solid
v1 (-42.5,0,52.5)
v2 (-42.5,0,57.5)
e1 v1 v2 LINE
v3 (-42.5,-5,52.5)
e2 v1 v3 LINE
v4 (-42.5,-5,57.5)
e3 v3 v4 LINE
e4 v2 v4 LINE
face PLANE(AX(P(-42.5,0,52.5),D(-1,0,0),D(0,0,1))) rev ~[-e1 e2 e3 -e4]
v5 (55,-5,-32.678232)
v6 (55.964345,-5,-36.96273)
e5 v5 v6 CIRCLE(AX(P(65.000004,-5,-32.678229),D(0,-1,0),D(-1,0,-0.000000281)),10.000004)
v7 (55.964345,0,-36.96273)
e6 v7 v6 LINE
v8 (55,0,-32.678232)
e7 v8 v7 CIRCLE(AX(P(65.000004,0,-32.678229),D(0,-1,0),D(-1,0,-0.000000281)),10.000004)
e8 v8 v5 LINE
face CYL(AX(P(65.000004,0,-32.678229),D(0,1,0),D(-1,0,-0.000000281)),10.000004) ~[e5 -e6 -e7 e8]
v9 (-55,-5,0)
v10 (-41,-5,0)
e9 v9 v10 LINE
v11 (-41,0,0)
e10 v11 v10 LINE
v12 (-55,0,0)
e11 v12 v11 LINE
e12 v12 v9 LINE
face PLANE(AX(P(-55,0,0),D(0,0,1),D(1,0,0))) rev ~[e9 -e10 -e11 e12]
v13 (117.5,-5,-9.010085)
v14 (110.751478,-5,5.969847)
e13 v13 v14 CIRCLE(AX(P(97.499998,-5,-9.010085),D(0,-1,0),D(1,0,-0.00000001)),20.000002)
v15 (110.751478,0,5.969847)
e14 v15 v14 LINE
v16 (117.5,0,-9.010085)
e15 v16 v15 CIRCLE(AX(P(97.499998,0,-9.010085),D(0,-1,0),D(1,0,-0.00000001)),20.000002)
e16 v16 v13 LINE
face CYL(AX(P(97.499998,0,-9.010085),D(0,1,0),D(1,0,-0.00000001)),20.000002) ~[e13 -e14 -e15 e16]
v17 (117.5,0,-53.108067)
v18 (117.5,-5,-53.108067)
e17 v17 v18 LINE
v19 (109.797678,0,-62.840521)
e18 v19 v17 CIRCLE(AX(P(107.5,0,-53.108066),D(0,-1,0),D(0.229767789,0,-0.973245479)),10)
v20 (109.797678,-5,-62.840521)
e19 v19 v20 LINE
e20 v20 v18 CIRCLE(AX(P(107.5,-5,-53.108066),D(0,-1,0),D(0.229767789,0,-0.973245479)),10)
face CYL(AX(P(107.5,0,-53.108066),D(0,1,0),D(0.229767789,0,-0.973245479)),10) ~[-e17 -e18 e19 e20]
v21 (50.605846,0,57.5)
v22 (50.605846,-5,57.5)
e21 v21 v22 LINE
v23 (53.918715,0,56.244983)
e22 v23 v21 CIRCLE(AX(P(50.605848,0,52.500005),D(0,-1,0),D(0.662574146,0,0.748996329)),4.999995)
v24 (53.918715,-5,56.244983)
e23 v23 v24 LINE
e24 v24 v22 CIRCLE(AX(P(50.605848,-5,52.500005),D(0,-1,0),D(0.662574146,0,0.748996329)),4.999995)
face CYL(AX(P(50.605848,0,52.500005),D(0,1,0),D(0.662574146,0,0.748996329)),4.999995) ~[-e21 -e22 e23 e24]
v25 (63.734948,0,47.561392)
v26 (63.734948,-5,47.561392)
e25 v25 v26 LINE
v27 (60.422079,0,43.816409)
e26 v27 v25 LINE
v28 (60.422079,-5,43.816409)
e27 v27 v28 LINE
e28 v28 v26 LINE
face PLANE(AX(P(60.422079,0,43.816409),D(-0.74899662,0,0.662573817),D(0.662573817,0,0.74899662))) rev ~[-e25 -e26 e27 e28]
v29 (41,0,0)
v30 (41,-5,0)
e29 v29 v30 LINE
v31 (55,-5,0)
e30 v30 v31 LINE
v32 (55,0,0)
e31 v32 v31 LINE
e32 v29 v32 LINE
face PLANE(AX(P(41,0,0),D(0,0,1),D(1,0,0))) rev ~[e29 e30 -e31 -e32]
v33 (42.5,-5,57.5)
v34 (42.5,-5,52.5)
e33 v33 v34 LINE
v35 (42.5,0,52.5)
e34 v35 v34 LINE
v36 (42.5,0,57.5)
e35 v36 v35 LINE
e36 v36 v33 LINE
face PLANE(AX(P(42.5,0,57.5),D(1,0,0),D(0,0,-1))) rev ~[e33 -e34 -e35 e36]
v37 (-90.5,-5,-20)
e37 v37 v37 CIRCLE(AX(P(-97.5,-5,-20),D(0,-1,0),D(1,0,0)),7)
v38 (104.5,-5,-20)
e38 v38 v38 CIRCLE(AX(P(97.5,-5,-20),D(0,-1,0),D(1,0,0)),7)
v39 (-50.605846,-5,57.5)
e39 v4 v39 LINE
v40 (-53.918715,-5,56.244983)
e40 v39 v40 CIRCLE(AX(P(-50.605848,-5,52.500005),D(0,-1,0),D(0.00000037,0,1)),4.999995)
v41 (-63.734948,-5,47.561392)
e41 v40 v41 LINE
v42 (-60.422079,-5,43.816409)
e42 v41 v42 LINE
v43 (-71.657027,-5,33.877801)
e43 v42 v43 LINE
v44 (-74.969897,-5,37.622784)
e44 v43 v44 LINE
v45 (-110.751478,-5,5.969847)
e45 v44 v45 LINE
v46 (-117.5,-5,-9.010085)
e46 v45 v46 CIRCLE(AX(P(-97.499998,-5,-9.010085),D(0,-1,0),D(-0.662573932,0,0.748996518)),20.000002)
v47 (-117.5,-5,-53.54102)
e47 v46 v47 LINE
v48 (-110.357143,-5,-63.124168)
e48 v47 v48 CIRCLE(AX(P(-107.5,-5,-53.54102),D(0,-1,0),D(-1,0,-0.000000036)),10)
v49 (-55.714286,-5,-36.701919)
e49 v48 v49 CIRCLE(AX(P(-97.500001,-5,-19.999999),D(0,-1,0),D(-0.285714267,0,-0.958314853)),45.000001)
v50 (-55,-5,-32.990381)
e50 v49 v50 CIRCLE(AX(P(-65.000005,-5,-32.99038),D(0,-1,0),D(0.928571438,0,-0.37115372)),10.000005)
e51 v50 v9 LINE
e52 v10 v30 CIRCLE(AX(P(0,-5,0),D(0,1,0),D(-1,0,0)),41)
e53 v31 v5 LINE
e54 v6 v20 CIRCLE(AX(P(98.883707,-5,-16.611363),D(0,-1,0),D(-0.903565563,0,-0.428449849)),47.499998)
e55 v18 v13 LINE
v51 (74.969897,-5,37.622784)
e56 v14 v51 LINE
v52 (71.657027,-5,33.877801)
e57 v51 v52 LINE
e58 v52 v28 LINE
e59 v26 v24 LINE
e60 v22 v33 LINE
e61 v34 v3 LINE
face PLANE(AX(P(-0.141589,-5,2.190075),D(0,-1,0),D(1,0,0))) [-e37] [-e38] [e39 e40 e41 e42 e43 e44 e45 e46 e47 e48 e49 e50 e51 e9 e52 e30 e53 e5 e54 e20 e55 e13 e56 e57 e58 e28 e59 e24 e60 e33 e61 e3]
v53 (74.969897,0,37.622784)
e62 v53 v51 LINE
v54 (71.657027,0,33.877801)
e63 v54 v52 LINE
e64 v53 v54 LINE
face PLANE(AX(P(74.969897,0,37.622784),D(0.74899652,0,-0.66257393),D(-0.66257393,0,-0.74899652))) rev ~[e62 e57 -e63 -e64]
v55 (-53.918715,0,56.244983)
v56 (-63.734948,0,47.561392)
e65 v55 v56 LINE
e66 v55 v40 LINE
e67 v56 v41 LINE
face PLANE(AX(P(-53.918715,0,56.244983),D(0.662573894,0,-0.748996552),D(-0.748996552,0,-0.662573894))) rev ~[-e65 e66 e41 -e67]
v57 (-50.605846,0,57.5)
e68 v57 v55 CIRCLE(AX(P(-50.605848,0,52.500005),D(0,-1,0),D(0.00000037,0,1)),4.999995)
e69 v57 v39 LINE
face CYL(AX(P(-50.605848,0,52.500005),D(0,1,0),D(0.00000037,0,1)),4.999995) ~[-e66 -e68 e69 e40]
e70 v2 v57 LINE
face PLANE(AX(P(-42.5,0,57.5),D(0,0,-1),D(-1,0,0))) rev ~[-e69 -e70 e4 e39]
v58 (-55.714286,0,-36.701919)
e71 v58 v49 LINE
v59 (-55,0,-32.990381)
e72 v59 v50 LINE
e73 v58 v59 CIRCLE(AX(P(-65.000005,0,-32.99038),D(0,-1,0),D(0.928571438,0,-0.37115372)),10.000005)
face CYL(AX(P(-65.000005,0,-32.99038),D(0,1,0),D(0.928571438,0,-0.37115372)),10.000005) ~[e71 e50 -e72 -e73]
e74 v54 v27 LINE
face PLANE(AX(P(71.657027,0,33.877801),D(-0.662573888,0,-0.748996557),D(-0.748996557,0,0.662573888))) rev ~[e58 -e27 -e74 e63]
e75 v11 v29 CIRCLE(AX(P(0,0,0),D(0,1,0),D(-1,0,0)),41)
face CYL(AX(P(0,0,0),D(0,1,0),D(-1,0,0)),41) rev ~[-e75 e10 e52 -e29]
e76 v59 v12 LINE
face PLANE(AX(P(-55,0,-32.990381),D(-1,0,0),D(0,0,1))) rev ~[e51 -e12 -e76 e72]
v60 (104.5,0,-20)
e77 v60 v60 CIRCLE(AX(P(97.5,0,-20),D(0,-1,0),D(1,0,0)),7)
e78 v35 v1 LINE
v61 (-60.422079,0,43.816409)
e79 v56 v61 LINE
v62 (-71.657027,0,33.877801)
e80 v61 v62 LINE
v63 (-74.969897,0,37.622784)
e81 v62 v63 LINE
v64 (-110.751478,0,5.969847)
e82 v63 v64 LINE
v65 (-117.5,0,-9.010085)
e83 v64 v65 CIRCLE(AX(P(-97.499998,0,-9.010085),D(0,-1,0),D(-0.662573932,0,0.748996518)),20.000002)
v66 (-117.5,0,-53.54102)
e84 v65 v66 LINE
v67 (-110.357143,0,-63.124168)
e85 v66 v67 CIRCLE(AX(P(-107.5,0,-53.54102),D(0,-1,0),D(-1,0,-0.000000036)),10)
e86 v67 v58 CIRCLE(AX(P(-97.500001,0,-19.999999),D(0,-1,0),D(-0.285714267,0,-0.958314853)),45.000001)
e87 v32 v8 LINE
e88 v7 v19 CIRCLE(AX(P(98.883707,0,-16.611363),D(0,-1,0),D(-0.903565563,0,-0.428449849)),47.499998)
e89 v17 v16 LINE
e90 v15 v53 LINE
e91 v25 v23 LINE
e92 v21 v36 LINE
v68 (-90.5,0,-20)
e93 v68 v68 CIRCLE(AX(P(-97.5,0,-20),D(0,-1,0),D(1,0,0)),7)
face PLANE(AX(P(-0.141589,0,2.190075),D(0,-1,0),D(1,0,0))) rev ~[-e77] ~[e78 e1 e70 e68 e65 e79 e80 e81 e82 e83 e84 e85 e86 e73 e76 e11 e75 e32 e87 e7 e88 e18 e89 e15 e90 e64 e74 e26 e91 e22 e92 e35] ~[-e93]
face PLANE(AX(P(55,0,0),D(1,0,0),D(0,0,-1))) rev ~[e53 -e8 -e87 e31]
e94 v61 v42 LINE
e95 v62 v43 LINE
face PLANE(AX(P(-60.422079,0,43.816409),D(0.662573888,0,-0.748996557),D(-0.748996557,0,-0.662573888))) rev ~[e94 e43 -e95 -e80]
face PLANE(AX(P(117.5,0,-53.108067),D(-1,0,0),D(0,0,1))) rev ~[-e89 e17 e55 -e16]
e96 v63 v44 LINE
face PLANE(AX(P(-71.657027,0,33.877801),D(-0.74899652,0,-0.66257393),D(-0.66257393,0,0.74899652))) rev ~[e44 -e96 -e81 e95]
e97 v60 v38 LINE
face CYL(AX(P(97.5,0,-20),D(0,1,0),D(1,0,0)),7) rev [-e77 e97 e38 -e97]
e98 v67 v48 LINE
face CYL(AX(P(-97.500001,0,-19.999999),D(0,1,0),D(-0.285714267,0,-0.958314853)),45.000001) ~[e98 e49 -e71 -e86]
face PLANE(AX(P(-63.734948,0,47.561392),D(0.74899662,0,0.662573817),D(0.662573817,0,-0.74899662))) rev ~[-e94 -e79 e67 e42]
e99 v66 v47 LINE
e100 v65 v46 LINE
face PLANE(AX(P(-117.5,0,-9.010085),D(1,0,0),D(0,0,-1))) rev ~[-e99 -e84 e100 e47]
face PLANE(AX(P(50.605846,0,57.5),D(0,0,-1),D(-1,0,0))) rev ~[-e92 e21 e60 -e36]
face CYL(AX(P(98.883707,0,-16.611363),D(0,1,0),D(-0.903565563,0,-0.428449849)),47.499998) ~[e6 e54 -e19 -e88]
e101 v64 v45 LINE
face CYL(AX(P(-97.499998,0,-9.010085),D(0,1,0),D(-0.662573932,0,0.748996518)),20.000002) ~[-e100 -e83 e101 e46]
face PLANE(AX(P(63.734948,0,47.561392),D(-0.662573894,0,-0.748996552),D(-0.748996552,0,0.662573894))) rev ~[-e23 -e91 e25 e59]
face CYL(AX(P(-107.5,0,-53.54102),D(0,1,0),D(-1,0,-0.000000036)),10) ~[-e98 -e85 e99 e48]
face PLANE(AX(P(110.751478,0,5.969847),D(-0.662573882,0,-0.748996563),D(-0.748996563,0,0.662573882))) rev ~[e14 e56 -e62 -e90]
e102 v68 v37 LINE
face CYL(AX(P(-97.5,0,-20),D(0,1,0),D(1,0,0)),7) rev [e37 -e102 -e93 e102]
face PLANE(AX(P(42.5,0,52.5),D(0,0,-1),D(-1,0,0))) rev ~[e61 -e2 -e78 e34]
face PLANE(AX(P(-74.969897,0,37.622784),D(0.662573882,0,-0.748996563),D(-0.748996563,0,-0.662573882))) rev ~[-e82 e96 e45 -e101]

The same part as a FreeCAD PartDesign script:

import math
import FreeCAD as App
import Part
import Sketcher

V = App.Vector
Q = App.Units.Quantity

doc = App.newDocument("Part")
body = doc.addObject("PartDesign::Body", "Body")

# Sketch on XZ plane
sketch1 = body.newObject("Sketcher::SketchObject", "Sketch")
sketch1.AttachmentSupport = (doc.getObject("XZ_Plane"), [""])
sketch1.MapMode = "FlatFace"
sketch1.addGeometry(Part.ArcOfCircle(Part.Circle(V(0, 0, 0), V(0, 0, 1), 41), math.radians(0), math.radians(180)), False)
sketch1.addGeometry(Part.LineSegment(V(41, 0, 0), V(55, 0, 0)), False)
sketch1.addGeometry(Part.LineSegment(V(55, 0, 0), V(55, -32.7, 0)), False)
sketch1.addGeometry(Part.ArcOfCircle(Part.Circle(V(65, -32.7, 0), V(0, 0, 1), 10), math.radians(-180), math.radians(-155)), False)
sketch1.addGeometry(Part.ArcOfCircle(Part.Circle(V(98.9, -16.6, 0), V(0, 0, 1), 47.5), math.radians(-155), math.radians(-77)), False)
sketch1.addGeometry(Part.ArcOfCircle(Part.Circle(V(107.5, -53.1, 0), V(0, 0, 1), 10), math.radians(-77), math.radians(0)), False)
sketch1.addGeometry(Part.LineSegment(V(117.5, -53.1, 0), V(117.5, -9, 0)), False)
sketch1.addGeometry(Part.ArcOfCircle(Part.Circle(V(97.5, -9, 0), V(0, 0, 1), 20), math.radians(0), math.radians(49)), False)
sketch1.addGeometry(Part.LineSegment(V(110.8, 6, 0), V(75, 37.6, 0)), False)
sketch1.addGeometry(Part.LineSegment(V(75, 37.6, 0), V(71.7, 33.9, 0)), False)
sketch1.addGeometry(Part.LineSegment(V(71.7, 33.9, 0), V(60.4, 43.8, 0)), False)
sketch1.addGeometry(Part.LineSegment(V(60.4, 43.8, 0), V(63.7, 47.6, 0)), False)
sketch1.addGeometry(Part.LineSegment(V(63.7, 47.6, 0), V(53.9, 56.2, 0)), False)
sketch1.addGeometry(Part.ArcOfCircle(Part.Circle(V(50.6, 52.5, 0), V(0, 0, 1), 5), math.radians(49), math.radians(90)), False)
sketch1.addGeometry(Part.LineSegment(V(50.6, 57.5, 0), V(42.5, 57.5, 0)), False)
sketch1.addGeometry(Part.LineSegment(V(42.5, 57.5, 0), V(42.5, 52.5, 0)), False)
sketch1.addGeometry(Part.LineSegment(V(42.5, 52.5, 0), V(-42.5, 52.5, 0)), False)
sketch1.addGeometry(Part.LineSegment(V(-42.5, 52.5, 0), V(-42.5, 57.5, 0)), False)
sketch1.addGeometry(Part.LineSegment(V(-42.5, 57.5, 0), V(-50.6, 57.5, 0)), False)
sketch1.addGeometry(Part.ArcOfCircle(Part.Circle(V(-50.6, 52.5, 0), V(0, 0, 1), 5), math.radians(90), math.radians(131)), False)
sketch1.addGeometry(Part.LineSegment(V(-53.9, 56.2, 0), V(-63.7, 47.6, 0)), False)
sketch1.addGeometry(Part.LineSegment(V(-63.7, 47.6, 0), V(-60.4, 43.8, 0)), False)
sketch1.addGeometry(Part.LineSegment(V(-60.4, 43.8, 0), V(-71.7, 33.9, 0)), False)
sketch1.addGeometry(Part.LineSegment(V(-71.7, 33.9, 0), V(-75, 37.6, 0)), False)
sketch1.addGeometry(Part.LineSegment(V(-75, 37.6, 0), V(-110.8, 6, 0)), False)
sketch1.addGeometry(Part.ArcOfCircle(Part.Circle(V(-97.5, -9, 0), V(0, 0, 1), 20), math.radians(131), math.radians(180)), False)
sketch1.addGeometry(Part.LineSegment(V(-117.5, -9, 0), V(-117.5, -53.5, 0)), False)
sketch1.addGeometry(Part.ArcOfCircle(Part.Circle(V(-107.5, -53.5, 0), V(0, 0, 1), 10), math.radians(-180), math.radians(-107)), False)
sketch1.addGeometry(Part.ArcOfCircle(Part.Circle(V(-97.5, -20, 0), V(0, 0, 1), 45), math.radians(-107), math.radians(-22)), False)
sketch1.addGeometry(Part.ArcOfCircle(Part.Circle(V(-65, -33, 0), V(0, 0, 1), 10), math.radians(-22), math.radians(0)), False)
sketch1.addGeometry(Part.LineSegment(V(-55, -33, 0), V(-55, 0, 0)), False)
sketch1.addGeometry(Part.LineSegment(V(-55, 0, 0), V(-41, 0, 0)), False)
sketch1.addGeometry(Part.Circle(V(-97.5, -20, 0), V(0, 0, 1), 7), False)
sketch1.addGeometry(Part.Circle(V(97.5, -20, 0), V(0, 0, 1), 7), False)
sketch1.addConstraint(Sketcher.Constraint("Coincident", 0, 1, 1, 1))
sketch1.addConstraint(Sketcher.Constraint("Coincident", 1, 2, 2, 1))
sketch1.addConstraint(Sketcher.Constraint("Tangent", 2, 2, 3, 1))
sketch1.addConstraint(Sketcher.Constraint("Tangent", 3, 2, 4, 1))
sketch1.addConstraint(Sketcher.Constraint("Tangent", 4, 2, 5, 1))
sketch1.addConstraint(Sketcher.Constraint("Tangent", 5, 2, 6, 1))
sketch1.addConstraint(Sketcher.Constraint("Tangent", 6, 2, 7, 1))
sketch1.addConstraint(Sketcher.Constraint("Tangent", 7, 2, 8, 1))
sketch1.addConstraint(Sketcher.Constraint("Coincident", 8, 2, 9, 1))
sketch1.addConstraint(Sketcher.Constraint("Coincident", 9, 2, 10, 1))
sketch1.addConstraint(Sketcher.Constraint("Coincident", 10, 2, 11, 1))
sketch1.addConstraint(Sketcher.Constraint("Coincident", 11, 2, 12, 1))
sketch1.addConstraint(Sketcher.Constraint("Tangent", 12, 2, 13, 1))
sketch1.addConstraint(Sketcher.Constraint("Tangent", 13, 2, 14, 1))
sketch1.addConstraint(Sketcher.Constraint("Coincident", 14, 2, 15, 1))
sketch1.addConstraint(Sketcher.Constraint("Coincident", 15, 2, 16, 1))
sketch1.addConstraint(Sketcher.Constraint("Coincident", 16, 2, 17, 1))
sketch1.addConstraint(Sketcher.Constraint("Coincident", 17, 2, 18, 1))
sketch1.addConstraint(Sketcher.Constraint("Tangent", 18, 2, 19, 1))
sketch1.addConstraint(Sketcher.Constraint("Tangent", 19, 2, 20, 1))
sketch1.addConstraint(Sketcher.Constraint("Coincident", 20, 2, 21, 1))
sketch1.addConstraint(Sketcher.Constraint("Coincident", 21, 2, 22, 1))
sketch1.addConstraint(Sketcher.Constraint("Coincident", 22, 2, 23, 1))
sketch1.addConstraint(Sketcher.Constraint("Coincident", 23, 2, 24, 1))
sketch1.addConstraint(Sketcher.Constraint("Tangent", 24, 2, 25, 1))
sketch1.addConstraint(Sketcher.Constraint("Tangent", 25, 2, 26, 1))
sketch1.addConstraint(Sketcher.Constraint("Tangent", 26, 2, 27, 1))
sketch1.addConstraint(Sketcher.Constraint("Tangent", 27, 2, 28, 1))
sketch1.addConstraint(Sketcher.Constraint("Tangent", 28, 2, 29, 1))
sketch1.addConstraint(Sketcher.Constraint("Tangent", 29, 2, 30, 1))
sketch1.addConstraint(Sketcher.Constraint("Coincident", 30, 2, 31, 1))
sketch1.addConstraint(Sketcher.Constraint("Coincident", 31, 2, 0, 2))
sketch1.addConstraint(Sketcher.Constraint("Horizontal", 1))
sketch1.addConstraint(Sketcher.Constraint("Vertical", 2))
sketch1.addConstraint(Sketcher.Constraint("Vertical", 6))
sketch1.addConstraint(Sketcher.Constraint("Horizontal", 14))
sketch1.addConstraint(Sketcher.Constraint("Vertical", 15))
sketch1.addConstraint(Sketcher.Constraint("Horizontal", 16))
sketch1.addConstraint(Sketcher.Constraint("Vertical", 17))
sketch1.addConstraint(Sketcher.Constraint("Horizontal", 18))
sketch1.addConstraint(Sketcher.Constraint("Vertical", 26))
sketch1.addConstraint(Sketcher.Constraint("Vertical", 30))
sketch1.addConstraint(Sketcher.Constraint("Horizontal", 31))
sketch1.addConstraint(Sketcher.Constraint("Coincident", 0, 3, -1, 1))
sketch1.addConstraint(Sketcher.Constraint("Coincident", 32, 3, 28, 3))
sketch1.addConstraint(Sketcher.Constraint("Equal", 13, 19))
sketch1.addConstraint(Sketcher.Constraint("Equal", 7, 25))
sketch1.addConstraint(Sketcher.Constraint("Equal", 5, 27))
sketch1.addConstraint(Sketcher.Constraint("Equal", 3, 29))
sketch1.addConstraint(Sketcher.Constraint("Equal", 32, 33))
sketch1.addConstraint(Sketcher.Constraint("Symmetric", 1, 2, 30, 2, -1, 1))
sketch1.addConstraint(Sketcher.Constraint("Symmetric", 13, 3, 19, 3, -2))
sketch1.addConstraint(Sketcher.Constraint("Symmetric", 7, 3, 25, 3, -2))
sketch1.addConstraint(Sketcher.Constraint("Symmetric", 28, 3, 33, 3, -2))
sketch1.addConstraint(Sketcher.Constraint("Symmetric", 11, 2, 20, 2, -2))
sketch1.addConstraint(Sketcher.Constraint("Symmetric", 10, 2, 21, 2, -2))
sketch1.addConstraint(Sketcher.Constraint("Symmetric", 9, 2, 22, 2, -2))
sketch1.addConstraint(Sketcher.Constraint("Symmetric", 8, 2, 23, 2, -2))
sketch1.addConstraint(Sketcher.Constraint("PointOnObject", 0, 1, -1))
sketch1.addConstraint(Sketcher.Constraint("Perpendicular", 8, 9))
sketch1.addConstraint(Sketcher.Constraint("Perpendicular", 9, 10))
sketch1.addConstraint(Sketcher.Constraint("Perpendicular", 10, 11))
sketch1.addConstraint(Sketcher.Constraint("Perpendicular", 11, 12))
sketch1.addConstraint(Sketcher.Constraint("Vertical", 25, 3, 32, 3))
sketch1.addConstraint(Sketcher.Constraint("Equal", 14, 18))
sketch1.addConstraint(Sketcher.Constraint("Equal", 9, 11))
sketch1.addConstraint(Sketcher.Constraint("Diameter", 32, Q("14 mm")))
sketch1.addConstraint(Sketcher.Constraint("Radius", 0, Q("41 mm")))
sketch1.addConstraint(Sketcher.Constraint("Radius", 5, Q("10 mm")))
sketch1.addConstraint(Sketcher.Constraint("Radius", 7, Q("20.000002 mm")))
sketch1.addConstraint(Sketcher.Constraint("Radius", 28, Q("45.000001 mm")))
sketch1.addConstraint(Sketcher.Constraint("DistanceX", 1, 1, 1, 2, Q("14 mm")))
sketch1.addConstraint(Sketcher.Constraint("DistanceX", 16, 2, 16, 1, Q("85 mm")))
sketch1.addConstraint(Sketcher.Constraint("DistanceY", 15, 2, 15, 1, Q("5 mm")))
sketch1.addConstraint(Sketcher.Constraint("Distance", 9, Q("5.000001 mm")))
sketch1.addConstraint(Sketcher.Constraint("Distance", 10, Q("15 mm")))
sketch1.addConstraint(Sketcher.Constraint("DistanceY", 28, 3, -1, 1, Q("19.999999 mm")))
sketch1.addConstraint(Sketcher.Constraint("DistanceX", 25, 3, 16, 2, Q("54.999998 mm")))
sketch1.addConstraint(Sketcher.Constraint("DistanceY", -1, 1, 13, 2, Q("57.5 mm")))
sketch1.addConstraint(Sketcher.Constraint("Radius", 3, Q("10.000004 mm")))
sketch1.addConstraint(Sketcher.Constraint("Radius", 4, Q("47.499998 mm")))
sketch1.addConstraint(Sketcher.Constraint("Radius", 13, Q("4.999995 mm")))
sketch1.addConstraint(Sketcher.Constraint("DistanceY", -1, 1, 9, 2, Q("33.877801 mm")))
sketch1.addConstraint(Sketcher.Constraint("DistanceY", 3, 2, 2, 2, Q("4.284498 mm")))
sketch1.addConstraint(Sketcher.Constraint("DistanceX", 8, 2, 7, 3, Q("22.530101 mm")))
sketch1.addConstraint(Sketcher.Constraint("DistanceX", 13, 3, 11, 2, Q("13.1291 mm")))
sketch1.addConstraint(Sketcher.Constraint("DistanceY", 2, 2, 2, 1, Q("32.678232 mm")))
pad1 = body.newObject("PartDesign::Pad", "Pad")
pad1.Profile = sketch1
pad1.Length = 5

doc.recompute()
